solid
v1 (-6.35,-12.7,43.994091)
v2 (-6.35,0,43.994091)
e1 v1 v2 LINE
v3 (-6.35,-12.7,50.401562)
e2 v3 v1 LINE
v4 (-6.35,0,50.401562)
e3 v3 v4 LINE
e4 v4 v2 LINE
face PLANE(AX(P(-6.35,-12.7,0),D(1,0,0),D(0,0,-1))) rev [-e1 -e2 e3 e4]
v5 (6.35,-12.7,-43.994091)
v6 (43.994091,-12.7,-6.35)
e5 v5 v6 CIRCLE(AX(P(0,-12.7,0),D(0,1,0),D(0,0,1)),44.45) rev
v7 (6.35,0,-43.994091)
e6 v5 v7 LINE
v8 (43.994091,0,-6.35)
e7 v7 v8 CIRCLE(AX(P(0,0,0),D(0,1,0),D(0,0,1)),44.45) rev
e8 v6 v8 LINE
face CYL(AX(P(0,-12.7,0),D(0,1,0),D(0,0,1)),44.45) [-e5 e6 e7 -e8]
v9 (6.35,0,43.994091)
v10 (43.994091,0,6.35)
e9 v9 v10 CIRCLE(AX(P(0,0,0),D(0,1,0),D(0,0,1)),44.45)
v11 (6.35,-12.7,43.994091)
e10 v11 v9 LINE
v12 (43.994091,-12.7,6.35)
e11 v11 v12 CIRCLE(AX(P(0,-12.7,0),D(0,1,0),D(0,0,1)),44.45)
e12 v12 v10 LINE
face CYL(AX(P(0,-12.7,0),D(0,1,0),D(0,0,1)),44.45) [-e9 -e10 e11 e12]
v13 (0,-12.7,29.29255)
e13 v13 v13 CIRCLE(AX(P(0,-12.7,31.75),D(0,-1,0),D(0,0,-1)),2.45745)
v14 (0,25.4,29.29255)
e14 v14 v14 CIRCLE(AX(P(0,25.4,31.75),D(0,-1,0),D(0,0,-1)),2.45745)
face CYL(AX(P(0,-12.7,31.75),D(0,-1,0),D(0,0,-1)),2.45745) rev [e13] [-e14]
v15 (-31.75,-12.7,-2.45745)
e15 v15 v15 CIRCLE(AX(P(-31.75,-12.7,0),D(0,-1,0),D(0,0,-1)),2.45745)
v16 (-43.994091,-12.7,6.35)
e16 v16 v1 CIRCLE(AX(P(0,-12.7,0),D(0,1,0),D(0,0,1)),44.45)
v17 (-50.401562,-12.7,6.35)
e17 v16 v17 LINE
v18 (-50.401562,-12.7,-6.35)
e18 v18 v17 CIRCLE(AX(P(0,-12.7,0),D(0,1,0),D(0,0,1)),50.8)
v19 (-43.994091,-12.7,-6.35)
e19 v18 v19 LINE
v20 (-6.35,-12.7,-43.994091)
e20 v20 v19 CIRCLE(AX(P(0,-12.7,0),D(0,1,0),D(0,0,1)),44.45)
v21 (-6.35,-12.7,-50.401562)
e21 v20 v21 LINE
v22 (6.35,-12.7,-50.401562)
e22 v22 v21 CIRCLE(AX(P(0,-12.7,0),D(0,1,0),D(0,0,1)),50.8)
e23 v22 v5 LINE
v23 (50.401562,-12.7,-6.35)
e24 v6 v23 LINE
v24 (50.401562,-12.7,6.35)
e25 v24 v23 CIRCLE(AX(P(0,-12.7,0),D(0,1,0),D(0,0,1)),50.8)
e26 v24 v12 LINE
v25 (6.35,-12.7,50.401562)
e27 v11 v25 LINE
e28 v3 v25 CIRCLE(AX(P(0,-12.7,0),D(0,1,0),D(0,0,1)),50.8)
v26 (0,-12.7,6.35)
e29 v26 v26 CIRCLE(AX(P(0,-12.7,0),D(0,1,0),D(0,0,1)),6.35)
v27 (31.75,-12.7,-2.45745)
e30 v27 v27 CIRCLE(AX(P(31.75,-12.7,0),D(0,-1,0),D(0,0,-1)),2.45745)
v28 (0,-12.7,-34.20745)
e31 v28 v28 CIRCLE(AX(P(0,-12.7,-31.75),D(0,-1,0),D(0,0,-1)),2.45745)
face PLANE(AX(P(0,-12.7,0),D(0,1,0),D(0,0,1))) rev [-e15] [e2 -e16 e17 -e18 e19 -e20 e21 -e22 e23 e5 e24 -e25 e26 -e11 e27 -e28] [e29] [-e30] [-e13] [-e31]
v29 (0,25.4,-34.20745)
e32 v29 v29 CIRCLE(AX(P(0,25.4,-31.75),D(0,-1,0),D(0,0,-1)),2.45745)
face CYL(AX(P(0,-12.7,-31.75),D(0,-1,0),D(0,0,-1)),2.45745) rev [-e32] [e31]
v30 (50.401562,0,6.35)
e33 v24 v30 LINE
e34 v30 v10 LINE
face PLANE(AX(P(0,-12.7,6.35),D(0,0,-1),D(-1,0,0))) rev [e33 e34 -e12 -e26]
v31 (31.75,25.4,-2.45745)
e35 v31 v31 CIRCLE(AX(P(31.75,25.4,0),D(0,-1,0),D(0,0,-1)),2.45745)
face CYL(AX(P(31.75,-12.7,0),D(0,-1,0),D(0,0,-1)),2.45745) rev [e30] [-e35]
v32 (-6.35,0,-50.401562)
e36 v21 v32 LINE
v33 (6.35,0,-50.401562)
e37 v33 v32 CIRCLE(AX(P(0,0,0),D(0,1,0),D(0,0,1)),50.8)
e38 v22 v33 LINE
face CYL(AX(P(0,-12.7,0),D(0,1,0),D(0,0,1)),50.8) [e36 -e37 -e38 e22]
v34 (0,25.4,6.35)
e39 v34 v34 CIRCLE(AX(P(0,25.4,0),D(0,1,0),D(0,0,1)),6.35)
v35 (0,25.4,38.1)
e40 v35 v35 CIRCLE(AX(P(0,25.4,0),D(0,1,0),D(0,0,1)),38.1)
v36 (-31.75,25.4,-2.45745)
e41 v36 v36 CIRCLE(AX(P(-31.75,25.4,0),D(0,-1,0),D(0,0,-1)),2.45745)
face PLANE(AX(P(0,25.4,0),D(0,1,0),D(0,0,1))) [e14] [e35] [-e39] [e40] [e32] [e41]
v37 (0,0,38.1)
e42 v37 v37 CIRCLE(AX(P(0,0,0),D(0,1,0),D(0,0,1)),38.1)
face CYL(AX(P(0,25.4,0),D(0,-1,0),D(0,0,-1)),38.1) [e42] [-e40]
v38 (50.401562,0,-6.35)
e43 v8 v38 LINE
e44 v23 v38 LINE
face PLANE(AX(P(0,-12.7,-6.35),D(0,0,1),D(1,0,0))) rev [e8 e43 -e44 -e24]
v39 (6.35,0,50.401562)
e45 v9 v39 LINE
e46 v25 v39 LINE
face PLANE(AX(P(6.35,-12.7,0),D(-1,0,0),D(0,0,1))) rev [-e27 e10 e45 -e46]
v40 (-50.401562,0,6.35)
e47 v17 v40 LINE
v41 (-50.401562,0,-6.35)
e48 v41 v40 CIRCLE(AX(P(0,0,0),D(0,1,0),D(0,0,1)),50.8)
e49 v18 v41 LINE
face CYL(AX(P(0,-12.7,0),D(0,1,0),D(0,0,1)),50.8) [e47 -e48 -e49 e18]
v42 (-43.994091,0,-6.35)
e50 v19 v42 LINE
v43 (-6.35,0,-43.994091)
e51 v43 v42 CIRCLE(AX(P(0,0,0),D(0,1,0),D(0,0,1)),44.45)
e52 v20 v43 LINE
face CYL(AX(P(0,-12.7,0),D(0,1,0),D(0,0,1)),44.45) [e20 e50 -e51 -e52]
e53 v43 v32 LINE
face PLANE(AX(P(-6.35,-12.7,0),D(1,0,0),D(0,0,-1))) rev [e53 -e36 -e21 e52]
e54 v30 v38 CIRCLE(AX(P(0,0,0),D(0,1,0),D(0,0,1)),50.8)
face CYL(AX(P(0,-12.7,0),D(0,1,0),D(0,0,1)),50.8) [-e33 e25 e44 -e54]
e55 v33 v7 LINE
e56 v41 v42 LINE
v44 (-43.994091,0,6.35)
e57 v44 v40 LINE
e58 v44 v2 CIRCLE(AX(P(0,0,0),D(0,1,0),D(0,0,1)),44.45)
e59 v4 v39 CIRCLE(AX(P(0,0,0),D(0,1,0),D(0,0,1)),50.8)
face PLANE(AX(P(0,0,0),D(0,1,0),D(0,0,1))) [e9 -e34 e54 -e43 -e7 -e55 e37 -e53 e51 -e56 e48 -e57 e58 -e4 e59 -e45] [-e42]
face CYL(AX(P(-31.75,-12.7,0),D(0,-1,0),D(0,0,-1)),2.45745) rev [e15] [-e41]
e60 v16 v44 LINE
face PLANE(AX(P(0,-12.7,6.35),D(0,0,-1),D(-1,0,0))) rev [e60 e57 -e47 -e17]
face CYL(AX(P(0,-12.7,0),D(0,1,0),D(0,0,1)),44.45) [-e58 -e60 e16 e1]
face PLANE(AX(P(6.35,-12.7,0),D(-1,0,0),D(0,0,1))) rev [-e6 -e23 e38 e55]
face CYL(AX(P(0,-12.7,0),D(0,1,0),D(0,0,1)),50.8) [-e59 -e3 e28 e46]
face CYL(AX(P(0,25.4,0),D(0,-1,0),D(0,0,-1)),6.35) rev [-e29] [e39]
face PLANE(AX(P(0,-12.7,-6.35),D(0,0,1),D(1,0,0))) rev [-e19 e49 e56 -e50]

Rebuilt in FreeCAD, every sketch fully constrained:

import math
import FreeCAD as App
import Part
import Sketcher
Q = App.Units.Quantity

doc = App.newDocument("Part")
body = doc.addObject("PartDesign::Body", "Body")

sketch1 = body.newObject("Sketcher::SketchObject", "Sketch")
sketch1.AttachmentSupport = (doc.getObject("XZ_Plane"), [""])
sketch1.MapMode = "FlatFace"
sketch1.addGeometry(Part.Circle(App.Vector(0, 0, 0), App.Vector(0, 0, 1), 38.1), False)
sketch1.addGeometry(Part.Circle(App.Vector(0, 0, 0), App.Vector(0, 0, 1), 6.35), False)
sketch1.addConstraint(Sketcher.Constraint("Coincident", 0, 3, -1, 1))
sketch1.addConstraint(Sketcher.Constraint("Coincident", 1, 3, -1, 1))
sketch1.addConstraint(Sketcher.Constraint("Diameter", 0, Q("3 in")))
sketch1.addConstraint(Sketcher.Constraint("Diameter", 1, Q("0.5 in")))
pad1 = body.newObject("PartDesign::Pad", "Pad")
pad1.Profile = sketch1
pad1.Length = Q("1 in")
pad1.Reversed = True

sketch2 = body.newObject("Sketcher::SketchObject", "Sketch001")
sketch2.AttachmentSupport = (doc.getObject("XZ_Plane"), [""])
sketch2.MapMode = "FlatFace"
sketch2.addGeometry(Part.LineSegment(App.Vector(-6.35, -50.401562, 0), App.Vector(-6.35, -43.994091, 0)), False)
sketch2.addGeometry(Part.ArcOfCircle(Part.Circle(App.Vector(0, 0, 0), App.Vector(0, 0, 1), 44.45), math.radians(-171.786789), math.radians(-98.213211)), False)
sketch2.addGeometry(Part.LineSegment(App.Vector(-43.994091, -6.35, 0), App.Vector(-50.401562, -6.35, 0)), False)
sketch2.addGeometry(Part.ArcOfCircle(Part.Circle(App.Vector(0, 0, 0), App.Vector(0, 0, 1), 50.8), math.radians(172.819244), math.radians(187.180756)), False)
sketch2.addGeometry(Part.LineSegment(App.Vector(-50.401562, 6.35, 0), App.Vector(-43.994091, 6.35, 0)), False)
sketch2.addGeometry(Part.ArcOfCircle(Part.Circle(App.Vector(0, 0, 0), App.Vector(0, 0, 1), 44.45), math.radians(98.213211), math.radians(171.786789)), False)
sketch2.addGeometry(Part.LineSegment(App.Vector(-6.35, 43.994091, 0), App.Vector(-6.35, 50.401562, 0)), False)
sketch2.addGeometry(Part.ArcOfCircle(Part.Circle(App.Vector(0, 0, 0), App.Vector(0, 0, 1), 50.8), math.radians(82.819244), math.radians(97.180756)), False)
sketch2.addGeometry(Part.LineSegment(App.Vector(6.35, 50.401562, 0), App.Vector(6.35, 43.994091, 0)), False)
sketch2.addGeometry(Part.ArcOfCircle(Part.Circle(App.Vector(0, 0, 0), App.Vector(0, 0, 1), 44.45), math.radians(8.213211), math.radians(81.786789)), False)
sketch2.addGeometry(Part.LineSegment(App.Vector(43.994091, 6.35, 0), App.Vector(50.401562, 6.35, 0)), False)
sketch2.addGeometry(Part.ArcOfCircle(Part.Circle(App.Vector(0, 0, 0), App.Vector(0, 0, 1), 50.8), math.radians(-7.180756), math.radians(7.180756)), False)
sketch2.addGeometry(Part.LineSegment(App.Vector(50.401562, -6.35, 0), App.Vector(43.994091, -6.35, 0)), False)
sketch2.addGeometry(Part.ArcOfCircle(Part.Circle(App.Vector(0, 0, 0), App.Vector(0, 0, 1), 44.45), math.radians(-81.786789), math.radians(-8.213211)), False)
sketch2.addGeometry(Part.LineSegment(App.Vector(6.35, -43.994091, 0), App.Vector(6.35, -50.401562, 0)), False)
sketch2.addGeometry(Part.ArcOfCircle(Part.Circle(App.Vector(0, 0, 0), App.Vector(0, 0, 1), 50.8), math.radians(-97.180756), math.radians(-82.819244)), False)
sketch2.addGeometry(Part.Circle(App.Vector(0, 0, 0), App.Vector(0, 0, 1), 6.35), False)
sketch2.addConstraint(Sketcher.Constraint("Coincident", 0, 2, 1, 2))
sketch2.addConstraint(Sketcher.Constraint("Coincident", 1, 1, 2, 1))
sketch2.addConstraint(Sketcher.Constraint("Coincident", 2, 2, 3, 2))
sketch2.addConstraint(Sketcher.Constraint("Coincident", 3, 1, 4, 1))
sketch2.addConstraint(Sketcher.Constraint("Coincident", 4, 2, 5, 2))
sketch2.addConstraint(Sketcher.Constraint("Coincident", 5, 1, 6, 1))
sketch2.addConstraint(Sketcher.Constraint("Coincident", 6, 2, 7, 2))
sketch2.addConstraint(Sketcher.Constraint("Coincident", 7, 1, 8, 1))
sketch2.addConstraint(Sketcher.Constraint("Coincident", 8, 2, 9, 2))
sketch2.addConstraint(Sketcher.Constraint("Coincident", 9, 1, 10, 1))
sketch2.addConstraint(Sketcher.Constraint("Coincident", 10, 2, 11, 2))
sketch2.addConstraint(Sketcher.Constraint("Coincident", 11, 1, 12, 1))
sketch2.addConstraint(Sketcher.Constraint("Coincident", 12, 2, 13, 2))
sketch2.addConstraint(Sketcher.Constraint("Coincident", 13, 1, 14, 1))
sketch2.addConstraint(Sketcher.Constraint("Coincident", 14, 2, 15, 2))
sketch2.addConstraint(Sketcher.Constraint("Coincident", 15, 1, 0, 1))
sketch2.addConstraint(Sketcher.Constraint("Vertical", 0))
sketch2.addConstraint(Sketcher.Constraint("Horizontal", 2))
sketch2.addConstraint(Sketcher.Constraint("Horizontal", 4))
sketch2.addConstraint(Sketcher.Constraint("Vertical", 6))
sketch2.addConstraint(Sketcher.Constraint("Vertical", 8))
sketch2.addConstraint(Sketcher.Constraint("Horizontal", 10))
sketch2.addConstraint(Sketcher.Constraint("Horizontal", 12))
sketch2.addConstraint(Sketcher.Constraint("Vertical", 14))
sketch2.addConstraint(Sketcher.Constraint("Coincident", 1, 3, -1, 1))
sketch2.addConstraint(Sketcher.Constraint("Coincident", 3, 3, -1, 1))
sketch2.addConstraint(Sketcher.Constraint("Coincident", 5, 3, -1, 1))
sketch2.addConstraint(Sketcher.Constraint("Coincident", 7, 3, -1, 1))
sketch2.addConstraint(Sketcher.Constraint("Coincident", 9, 3, -1, 1))
sketch2.addConstraint(Sketcher.Constraint("Coincident", 11, 3, -1, 1))
sketch2.addConstraint(Sketcher.Constraint("Coincident", 13, 3, -1, 1))
sketch2.addConstraint(Sketcher.Constraint("Coincident", 15, 3, -1, 1))
sketch2.addConstraint(Sketcher.Constraint("Coincident", 16, 3, -1, 1))
sketch2.addConstraint(Sketcher.Constraint("Equal", 1, 5))
sketch2.addConstraint(Sketcher.Constraint("Equal", 3, 7))
sketch2.addConstraint(Sketcher.Constraint("Equal", 5, 9))
sketch2.addConstraint(Sketcher.Constraint("Equal", 7, 11))
sketch2.addConstraint(Sketcher.Constraint("Equal", 9, 13))
sketch2.addConstraint(Sketcher.Constraint("Equal", 11, 15))
sketch2.addConstraint(Sketcher.Constraint("Horizontal", 6, 2, 7, 1))
sketch2.addConstraint(Sketcher.Constraint("Horizontal", 4, 2, 9, 1))
sketch2.addConstraint(Sketcher.Constraint("Horizontal", 2, 2, 11, 1))
sketch2.addConstraint(Sketcher.Constraint("Horizontal", 0, 2, 13, 1))
sketch2.addConstraint(Sketcher.Constraint("Vertical", 2, 2, 3, 1))
sketch2.addConstraint(Sketcher.Constraint("Vertical", 0, 2, 5, 1))
sketch2.addConstraint(Sketcher.Constraint("Equal", 12, 0))
sketch2.addConstraint(Sketcher.Constraint("Radius", 3, Q("2 in")))
sketch2.addConstraint(Sketcher.Constraint("Diameter", 16, Q("0.5 in")))
sketch2.addConstraint(Sketcher.Constraint("Radius", 1, Q("1.75 in")))
sketch2.addConstraint(Sketcher.Constraint("DistanceY", 2, 2, 3, 1, Q("0.5 in")))
pad2 = body.newObject("PartDesign::Pad", "Pad001")
pad2.Profile = sketch2
pad2.Length = Q("0.5 in")

sketch3 = body.newObject("Sketcher::SketchObject", "Sketch002")
sketch3.AttachmentSupport = (doc.getObject("XZ_Plane"), [""])
sketch3.MapMode = "FlatFace"
sketch3.AttachmentOffset = App.Placement(App.Vector(0, 0, 0.5 * 25.4), App.Rotation())
sketch3.addGeometry(Part.Circle(App.Vector(0, 31.75, 0), App.Vector(0, 0, 1), 2.45745), False)
sketch3.addConstraint(Sketcher.Constraint("PointOnObject", 0, 3, -2))
sketch3.addConstraint(Sketcher.Constraint("Diameter", 0, Q("0.1935 in")))
sketch3.addConstraint(Sketcher.Constraint("DistanceY", -1, 1, 0, 3, Q("1.25 in")))
doc.recompute()
hole = body.newObject("PartDesign::Hole", "Hole")
hole.Profile = sketch3
hole.ThreadType = "None"
hole.Diameter = Q("0.1935 in")
hole.DepthType = "ThroughAll"
doc.recompute()

polarpattern = body.newObject("PartDesign::PolarPattern", "PolarPattern")
polarpattern.Originals = [hole]
polarpattern.Axis = (doc.getObject("Y_Axis"), [""])
polarpattern.Angle = 360
polarpattern.Occurrences = 4
body.Tip = polarpattern

doc.recompute()
